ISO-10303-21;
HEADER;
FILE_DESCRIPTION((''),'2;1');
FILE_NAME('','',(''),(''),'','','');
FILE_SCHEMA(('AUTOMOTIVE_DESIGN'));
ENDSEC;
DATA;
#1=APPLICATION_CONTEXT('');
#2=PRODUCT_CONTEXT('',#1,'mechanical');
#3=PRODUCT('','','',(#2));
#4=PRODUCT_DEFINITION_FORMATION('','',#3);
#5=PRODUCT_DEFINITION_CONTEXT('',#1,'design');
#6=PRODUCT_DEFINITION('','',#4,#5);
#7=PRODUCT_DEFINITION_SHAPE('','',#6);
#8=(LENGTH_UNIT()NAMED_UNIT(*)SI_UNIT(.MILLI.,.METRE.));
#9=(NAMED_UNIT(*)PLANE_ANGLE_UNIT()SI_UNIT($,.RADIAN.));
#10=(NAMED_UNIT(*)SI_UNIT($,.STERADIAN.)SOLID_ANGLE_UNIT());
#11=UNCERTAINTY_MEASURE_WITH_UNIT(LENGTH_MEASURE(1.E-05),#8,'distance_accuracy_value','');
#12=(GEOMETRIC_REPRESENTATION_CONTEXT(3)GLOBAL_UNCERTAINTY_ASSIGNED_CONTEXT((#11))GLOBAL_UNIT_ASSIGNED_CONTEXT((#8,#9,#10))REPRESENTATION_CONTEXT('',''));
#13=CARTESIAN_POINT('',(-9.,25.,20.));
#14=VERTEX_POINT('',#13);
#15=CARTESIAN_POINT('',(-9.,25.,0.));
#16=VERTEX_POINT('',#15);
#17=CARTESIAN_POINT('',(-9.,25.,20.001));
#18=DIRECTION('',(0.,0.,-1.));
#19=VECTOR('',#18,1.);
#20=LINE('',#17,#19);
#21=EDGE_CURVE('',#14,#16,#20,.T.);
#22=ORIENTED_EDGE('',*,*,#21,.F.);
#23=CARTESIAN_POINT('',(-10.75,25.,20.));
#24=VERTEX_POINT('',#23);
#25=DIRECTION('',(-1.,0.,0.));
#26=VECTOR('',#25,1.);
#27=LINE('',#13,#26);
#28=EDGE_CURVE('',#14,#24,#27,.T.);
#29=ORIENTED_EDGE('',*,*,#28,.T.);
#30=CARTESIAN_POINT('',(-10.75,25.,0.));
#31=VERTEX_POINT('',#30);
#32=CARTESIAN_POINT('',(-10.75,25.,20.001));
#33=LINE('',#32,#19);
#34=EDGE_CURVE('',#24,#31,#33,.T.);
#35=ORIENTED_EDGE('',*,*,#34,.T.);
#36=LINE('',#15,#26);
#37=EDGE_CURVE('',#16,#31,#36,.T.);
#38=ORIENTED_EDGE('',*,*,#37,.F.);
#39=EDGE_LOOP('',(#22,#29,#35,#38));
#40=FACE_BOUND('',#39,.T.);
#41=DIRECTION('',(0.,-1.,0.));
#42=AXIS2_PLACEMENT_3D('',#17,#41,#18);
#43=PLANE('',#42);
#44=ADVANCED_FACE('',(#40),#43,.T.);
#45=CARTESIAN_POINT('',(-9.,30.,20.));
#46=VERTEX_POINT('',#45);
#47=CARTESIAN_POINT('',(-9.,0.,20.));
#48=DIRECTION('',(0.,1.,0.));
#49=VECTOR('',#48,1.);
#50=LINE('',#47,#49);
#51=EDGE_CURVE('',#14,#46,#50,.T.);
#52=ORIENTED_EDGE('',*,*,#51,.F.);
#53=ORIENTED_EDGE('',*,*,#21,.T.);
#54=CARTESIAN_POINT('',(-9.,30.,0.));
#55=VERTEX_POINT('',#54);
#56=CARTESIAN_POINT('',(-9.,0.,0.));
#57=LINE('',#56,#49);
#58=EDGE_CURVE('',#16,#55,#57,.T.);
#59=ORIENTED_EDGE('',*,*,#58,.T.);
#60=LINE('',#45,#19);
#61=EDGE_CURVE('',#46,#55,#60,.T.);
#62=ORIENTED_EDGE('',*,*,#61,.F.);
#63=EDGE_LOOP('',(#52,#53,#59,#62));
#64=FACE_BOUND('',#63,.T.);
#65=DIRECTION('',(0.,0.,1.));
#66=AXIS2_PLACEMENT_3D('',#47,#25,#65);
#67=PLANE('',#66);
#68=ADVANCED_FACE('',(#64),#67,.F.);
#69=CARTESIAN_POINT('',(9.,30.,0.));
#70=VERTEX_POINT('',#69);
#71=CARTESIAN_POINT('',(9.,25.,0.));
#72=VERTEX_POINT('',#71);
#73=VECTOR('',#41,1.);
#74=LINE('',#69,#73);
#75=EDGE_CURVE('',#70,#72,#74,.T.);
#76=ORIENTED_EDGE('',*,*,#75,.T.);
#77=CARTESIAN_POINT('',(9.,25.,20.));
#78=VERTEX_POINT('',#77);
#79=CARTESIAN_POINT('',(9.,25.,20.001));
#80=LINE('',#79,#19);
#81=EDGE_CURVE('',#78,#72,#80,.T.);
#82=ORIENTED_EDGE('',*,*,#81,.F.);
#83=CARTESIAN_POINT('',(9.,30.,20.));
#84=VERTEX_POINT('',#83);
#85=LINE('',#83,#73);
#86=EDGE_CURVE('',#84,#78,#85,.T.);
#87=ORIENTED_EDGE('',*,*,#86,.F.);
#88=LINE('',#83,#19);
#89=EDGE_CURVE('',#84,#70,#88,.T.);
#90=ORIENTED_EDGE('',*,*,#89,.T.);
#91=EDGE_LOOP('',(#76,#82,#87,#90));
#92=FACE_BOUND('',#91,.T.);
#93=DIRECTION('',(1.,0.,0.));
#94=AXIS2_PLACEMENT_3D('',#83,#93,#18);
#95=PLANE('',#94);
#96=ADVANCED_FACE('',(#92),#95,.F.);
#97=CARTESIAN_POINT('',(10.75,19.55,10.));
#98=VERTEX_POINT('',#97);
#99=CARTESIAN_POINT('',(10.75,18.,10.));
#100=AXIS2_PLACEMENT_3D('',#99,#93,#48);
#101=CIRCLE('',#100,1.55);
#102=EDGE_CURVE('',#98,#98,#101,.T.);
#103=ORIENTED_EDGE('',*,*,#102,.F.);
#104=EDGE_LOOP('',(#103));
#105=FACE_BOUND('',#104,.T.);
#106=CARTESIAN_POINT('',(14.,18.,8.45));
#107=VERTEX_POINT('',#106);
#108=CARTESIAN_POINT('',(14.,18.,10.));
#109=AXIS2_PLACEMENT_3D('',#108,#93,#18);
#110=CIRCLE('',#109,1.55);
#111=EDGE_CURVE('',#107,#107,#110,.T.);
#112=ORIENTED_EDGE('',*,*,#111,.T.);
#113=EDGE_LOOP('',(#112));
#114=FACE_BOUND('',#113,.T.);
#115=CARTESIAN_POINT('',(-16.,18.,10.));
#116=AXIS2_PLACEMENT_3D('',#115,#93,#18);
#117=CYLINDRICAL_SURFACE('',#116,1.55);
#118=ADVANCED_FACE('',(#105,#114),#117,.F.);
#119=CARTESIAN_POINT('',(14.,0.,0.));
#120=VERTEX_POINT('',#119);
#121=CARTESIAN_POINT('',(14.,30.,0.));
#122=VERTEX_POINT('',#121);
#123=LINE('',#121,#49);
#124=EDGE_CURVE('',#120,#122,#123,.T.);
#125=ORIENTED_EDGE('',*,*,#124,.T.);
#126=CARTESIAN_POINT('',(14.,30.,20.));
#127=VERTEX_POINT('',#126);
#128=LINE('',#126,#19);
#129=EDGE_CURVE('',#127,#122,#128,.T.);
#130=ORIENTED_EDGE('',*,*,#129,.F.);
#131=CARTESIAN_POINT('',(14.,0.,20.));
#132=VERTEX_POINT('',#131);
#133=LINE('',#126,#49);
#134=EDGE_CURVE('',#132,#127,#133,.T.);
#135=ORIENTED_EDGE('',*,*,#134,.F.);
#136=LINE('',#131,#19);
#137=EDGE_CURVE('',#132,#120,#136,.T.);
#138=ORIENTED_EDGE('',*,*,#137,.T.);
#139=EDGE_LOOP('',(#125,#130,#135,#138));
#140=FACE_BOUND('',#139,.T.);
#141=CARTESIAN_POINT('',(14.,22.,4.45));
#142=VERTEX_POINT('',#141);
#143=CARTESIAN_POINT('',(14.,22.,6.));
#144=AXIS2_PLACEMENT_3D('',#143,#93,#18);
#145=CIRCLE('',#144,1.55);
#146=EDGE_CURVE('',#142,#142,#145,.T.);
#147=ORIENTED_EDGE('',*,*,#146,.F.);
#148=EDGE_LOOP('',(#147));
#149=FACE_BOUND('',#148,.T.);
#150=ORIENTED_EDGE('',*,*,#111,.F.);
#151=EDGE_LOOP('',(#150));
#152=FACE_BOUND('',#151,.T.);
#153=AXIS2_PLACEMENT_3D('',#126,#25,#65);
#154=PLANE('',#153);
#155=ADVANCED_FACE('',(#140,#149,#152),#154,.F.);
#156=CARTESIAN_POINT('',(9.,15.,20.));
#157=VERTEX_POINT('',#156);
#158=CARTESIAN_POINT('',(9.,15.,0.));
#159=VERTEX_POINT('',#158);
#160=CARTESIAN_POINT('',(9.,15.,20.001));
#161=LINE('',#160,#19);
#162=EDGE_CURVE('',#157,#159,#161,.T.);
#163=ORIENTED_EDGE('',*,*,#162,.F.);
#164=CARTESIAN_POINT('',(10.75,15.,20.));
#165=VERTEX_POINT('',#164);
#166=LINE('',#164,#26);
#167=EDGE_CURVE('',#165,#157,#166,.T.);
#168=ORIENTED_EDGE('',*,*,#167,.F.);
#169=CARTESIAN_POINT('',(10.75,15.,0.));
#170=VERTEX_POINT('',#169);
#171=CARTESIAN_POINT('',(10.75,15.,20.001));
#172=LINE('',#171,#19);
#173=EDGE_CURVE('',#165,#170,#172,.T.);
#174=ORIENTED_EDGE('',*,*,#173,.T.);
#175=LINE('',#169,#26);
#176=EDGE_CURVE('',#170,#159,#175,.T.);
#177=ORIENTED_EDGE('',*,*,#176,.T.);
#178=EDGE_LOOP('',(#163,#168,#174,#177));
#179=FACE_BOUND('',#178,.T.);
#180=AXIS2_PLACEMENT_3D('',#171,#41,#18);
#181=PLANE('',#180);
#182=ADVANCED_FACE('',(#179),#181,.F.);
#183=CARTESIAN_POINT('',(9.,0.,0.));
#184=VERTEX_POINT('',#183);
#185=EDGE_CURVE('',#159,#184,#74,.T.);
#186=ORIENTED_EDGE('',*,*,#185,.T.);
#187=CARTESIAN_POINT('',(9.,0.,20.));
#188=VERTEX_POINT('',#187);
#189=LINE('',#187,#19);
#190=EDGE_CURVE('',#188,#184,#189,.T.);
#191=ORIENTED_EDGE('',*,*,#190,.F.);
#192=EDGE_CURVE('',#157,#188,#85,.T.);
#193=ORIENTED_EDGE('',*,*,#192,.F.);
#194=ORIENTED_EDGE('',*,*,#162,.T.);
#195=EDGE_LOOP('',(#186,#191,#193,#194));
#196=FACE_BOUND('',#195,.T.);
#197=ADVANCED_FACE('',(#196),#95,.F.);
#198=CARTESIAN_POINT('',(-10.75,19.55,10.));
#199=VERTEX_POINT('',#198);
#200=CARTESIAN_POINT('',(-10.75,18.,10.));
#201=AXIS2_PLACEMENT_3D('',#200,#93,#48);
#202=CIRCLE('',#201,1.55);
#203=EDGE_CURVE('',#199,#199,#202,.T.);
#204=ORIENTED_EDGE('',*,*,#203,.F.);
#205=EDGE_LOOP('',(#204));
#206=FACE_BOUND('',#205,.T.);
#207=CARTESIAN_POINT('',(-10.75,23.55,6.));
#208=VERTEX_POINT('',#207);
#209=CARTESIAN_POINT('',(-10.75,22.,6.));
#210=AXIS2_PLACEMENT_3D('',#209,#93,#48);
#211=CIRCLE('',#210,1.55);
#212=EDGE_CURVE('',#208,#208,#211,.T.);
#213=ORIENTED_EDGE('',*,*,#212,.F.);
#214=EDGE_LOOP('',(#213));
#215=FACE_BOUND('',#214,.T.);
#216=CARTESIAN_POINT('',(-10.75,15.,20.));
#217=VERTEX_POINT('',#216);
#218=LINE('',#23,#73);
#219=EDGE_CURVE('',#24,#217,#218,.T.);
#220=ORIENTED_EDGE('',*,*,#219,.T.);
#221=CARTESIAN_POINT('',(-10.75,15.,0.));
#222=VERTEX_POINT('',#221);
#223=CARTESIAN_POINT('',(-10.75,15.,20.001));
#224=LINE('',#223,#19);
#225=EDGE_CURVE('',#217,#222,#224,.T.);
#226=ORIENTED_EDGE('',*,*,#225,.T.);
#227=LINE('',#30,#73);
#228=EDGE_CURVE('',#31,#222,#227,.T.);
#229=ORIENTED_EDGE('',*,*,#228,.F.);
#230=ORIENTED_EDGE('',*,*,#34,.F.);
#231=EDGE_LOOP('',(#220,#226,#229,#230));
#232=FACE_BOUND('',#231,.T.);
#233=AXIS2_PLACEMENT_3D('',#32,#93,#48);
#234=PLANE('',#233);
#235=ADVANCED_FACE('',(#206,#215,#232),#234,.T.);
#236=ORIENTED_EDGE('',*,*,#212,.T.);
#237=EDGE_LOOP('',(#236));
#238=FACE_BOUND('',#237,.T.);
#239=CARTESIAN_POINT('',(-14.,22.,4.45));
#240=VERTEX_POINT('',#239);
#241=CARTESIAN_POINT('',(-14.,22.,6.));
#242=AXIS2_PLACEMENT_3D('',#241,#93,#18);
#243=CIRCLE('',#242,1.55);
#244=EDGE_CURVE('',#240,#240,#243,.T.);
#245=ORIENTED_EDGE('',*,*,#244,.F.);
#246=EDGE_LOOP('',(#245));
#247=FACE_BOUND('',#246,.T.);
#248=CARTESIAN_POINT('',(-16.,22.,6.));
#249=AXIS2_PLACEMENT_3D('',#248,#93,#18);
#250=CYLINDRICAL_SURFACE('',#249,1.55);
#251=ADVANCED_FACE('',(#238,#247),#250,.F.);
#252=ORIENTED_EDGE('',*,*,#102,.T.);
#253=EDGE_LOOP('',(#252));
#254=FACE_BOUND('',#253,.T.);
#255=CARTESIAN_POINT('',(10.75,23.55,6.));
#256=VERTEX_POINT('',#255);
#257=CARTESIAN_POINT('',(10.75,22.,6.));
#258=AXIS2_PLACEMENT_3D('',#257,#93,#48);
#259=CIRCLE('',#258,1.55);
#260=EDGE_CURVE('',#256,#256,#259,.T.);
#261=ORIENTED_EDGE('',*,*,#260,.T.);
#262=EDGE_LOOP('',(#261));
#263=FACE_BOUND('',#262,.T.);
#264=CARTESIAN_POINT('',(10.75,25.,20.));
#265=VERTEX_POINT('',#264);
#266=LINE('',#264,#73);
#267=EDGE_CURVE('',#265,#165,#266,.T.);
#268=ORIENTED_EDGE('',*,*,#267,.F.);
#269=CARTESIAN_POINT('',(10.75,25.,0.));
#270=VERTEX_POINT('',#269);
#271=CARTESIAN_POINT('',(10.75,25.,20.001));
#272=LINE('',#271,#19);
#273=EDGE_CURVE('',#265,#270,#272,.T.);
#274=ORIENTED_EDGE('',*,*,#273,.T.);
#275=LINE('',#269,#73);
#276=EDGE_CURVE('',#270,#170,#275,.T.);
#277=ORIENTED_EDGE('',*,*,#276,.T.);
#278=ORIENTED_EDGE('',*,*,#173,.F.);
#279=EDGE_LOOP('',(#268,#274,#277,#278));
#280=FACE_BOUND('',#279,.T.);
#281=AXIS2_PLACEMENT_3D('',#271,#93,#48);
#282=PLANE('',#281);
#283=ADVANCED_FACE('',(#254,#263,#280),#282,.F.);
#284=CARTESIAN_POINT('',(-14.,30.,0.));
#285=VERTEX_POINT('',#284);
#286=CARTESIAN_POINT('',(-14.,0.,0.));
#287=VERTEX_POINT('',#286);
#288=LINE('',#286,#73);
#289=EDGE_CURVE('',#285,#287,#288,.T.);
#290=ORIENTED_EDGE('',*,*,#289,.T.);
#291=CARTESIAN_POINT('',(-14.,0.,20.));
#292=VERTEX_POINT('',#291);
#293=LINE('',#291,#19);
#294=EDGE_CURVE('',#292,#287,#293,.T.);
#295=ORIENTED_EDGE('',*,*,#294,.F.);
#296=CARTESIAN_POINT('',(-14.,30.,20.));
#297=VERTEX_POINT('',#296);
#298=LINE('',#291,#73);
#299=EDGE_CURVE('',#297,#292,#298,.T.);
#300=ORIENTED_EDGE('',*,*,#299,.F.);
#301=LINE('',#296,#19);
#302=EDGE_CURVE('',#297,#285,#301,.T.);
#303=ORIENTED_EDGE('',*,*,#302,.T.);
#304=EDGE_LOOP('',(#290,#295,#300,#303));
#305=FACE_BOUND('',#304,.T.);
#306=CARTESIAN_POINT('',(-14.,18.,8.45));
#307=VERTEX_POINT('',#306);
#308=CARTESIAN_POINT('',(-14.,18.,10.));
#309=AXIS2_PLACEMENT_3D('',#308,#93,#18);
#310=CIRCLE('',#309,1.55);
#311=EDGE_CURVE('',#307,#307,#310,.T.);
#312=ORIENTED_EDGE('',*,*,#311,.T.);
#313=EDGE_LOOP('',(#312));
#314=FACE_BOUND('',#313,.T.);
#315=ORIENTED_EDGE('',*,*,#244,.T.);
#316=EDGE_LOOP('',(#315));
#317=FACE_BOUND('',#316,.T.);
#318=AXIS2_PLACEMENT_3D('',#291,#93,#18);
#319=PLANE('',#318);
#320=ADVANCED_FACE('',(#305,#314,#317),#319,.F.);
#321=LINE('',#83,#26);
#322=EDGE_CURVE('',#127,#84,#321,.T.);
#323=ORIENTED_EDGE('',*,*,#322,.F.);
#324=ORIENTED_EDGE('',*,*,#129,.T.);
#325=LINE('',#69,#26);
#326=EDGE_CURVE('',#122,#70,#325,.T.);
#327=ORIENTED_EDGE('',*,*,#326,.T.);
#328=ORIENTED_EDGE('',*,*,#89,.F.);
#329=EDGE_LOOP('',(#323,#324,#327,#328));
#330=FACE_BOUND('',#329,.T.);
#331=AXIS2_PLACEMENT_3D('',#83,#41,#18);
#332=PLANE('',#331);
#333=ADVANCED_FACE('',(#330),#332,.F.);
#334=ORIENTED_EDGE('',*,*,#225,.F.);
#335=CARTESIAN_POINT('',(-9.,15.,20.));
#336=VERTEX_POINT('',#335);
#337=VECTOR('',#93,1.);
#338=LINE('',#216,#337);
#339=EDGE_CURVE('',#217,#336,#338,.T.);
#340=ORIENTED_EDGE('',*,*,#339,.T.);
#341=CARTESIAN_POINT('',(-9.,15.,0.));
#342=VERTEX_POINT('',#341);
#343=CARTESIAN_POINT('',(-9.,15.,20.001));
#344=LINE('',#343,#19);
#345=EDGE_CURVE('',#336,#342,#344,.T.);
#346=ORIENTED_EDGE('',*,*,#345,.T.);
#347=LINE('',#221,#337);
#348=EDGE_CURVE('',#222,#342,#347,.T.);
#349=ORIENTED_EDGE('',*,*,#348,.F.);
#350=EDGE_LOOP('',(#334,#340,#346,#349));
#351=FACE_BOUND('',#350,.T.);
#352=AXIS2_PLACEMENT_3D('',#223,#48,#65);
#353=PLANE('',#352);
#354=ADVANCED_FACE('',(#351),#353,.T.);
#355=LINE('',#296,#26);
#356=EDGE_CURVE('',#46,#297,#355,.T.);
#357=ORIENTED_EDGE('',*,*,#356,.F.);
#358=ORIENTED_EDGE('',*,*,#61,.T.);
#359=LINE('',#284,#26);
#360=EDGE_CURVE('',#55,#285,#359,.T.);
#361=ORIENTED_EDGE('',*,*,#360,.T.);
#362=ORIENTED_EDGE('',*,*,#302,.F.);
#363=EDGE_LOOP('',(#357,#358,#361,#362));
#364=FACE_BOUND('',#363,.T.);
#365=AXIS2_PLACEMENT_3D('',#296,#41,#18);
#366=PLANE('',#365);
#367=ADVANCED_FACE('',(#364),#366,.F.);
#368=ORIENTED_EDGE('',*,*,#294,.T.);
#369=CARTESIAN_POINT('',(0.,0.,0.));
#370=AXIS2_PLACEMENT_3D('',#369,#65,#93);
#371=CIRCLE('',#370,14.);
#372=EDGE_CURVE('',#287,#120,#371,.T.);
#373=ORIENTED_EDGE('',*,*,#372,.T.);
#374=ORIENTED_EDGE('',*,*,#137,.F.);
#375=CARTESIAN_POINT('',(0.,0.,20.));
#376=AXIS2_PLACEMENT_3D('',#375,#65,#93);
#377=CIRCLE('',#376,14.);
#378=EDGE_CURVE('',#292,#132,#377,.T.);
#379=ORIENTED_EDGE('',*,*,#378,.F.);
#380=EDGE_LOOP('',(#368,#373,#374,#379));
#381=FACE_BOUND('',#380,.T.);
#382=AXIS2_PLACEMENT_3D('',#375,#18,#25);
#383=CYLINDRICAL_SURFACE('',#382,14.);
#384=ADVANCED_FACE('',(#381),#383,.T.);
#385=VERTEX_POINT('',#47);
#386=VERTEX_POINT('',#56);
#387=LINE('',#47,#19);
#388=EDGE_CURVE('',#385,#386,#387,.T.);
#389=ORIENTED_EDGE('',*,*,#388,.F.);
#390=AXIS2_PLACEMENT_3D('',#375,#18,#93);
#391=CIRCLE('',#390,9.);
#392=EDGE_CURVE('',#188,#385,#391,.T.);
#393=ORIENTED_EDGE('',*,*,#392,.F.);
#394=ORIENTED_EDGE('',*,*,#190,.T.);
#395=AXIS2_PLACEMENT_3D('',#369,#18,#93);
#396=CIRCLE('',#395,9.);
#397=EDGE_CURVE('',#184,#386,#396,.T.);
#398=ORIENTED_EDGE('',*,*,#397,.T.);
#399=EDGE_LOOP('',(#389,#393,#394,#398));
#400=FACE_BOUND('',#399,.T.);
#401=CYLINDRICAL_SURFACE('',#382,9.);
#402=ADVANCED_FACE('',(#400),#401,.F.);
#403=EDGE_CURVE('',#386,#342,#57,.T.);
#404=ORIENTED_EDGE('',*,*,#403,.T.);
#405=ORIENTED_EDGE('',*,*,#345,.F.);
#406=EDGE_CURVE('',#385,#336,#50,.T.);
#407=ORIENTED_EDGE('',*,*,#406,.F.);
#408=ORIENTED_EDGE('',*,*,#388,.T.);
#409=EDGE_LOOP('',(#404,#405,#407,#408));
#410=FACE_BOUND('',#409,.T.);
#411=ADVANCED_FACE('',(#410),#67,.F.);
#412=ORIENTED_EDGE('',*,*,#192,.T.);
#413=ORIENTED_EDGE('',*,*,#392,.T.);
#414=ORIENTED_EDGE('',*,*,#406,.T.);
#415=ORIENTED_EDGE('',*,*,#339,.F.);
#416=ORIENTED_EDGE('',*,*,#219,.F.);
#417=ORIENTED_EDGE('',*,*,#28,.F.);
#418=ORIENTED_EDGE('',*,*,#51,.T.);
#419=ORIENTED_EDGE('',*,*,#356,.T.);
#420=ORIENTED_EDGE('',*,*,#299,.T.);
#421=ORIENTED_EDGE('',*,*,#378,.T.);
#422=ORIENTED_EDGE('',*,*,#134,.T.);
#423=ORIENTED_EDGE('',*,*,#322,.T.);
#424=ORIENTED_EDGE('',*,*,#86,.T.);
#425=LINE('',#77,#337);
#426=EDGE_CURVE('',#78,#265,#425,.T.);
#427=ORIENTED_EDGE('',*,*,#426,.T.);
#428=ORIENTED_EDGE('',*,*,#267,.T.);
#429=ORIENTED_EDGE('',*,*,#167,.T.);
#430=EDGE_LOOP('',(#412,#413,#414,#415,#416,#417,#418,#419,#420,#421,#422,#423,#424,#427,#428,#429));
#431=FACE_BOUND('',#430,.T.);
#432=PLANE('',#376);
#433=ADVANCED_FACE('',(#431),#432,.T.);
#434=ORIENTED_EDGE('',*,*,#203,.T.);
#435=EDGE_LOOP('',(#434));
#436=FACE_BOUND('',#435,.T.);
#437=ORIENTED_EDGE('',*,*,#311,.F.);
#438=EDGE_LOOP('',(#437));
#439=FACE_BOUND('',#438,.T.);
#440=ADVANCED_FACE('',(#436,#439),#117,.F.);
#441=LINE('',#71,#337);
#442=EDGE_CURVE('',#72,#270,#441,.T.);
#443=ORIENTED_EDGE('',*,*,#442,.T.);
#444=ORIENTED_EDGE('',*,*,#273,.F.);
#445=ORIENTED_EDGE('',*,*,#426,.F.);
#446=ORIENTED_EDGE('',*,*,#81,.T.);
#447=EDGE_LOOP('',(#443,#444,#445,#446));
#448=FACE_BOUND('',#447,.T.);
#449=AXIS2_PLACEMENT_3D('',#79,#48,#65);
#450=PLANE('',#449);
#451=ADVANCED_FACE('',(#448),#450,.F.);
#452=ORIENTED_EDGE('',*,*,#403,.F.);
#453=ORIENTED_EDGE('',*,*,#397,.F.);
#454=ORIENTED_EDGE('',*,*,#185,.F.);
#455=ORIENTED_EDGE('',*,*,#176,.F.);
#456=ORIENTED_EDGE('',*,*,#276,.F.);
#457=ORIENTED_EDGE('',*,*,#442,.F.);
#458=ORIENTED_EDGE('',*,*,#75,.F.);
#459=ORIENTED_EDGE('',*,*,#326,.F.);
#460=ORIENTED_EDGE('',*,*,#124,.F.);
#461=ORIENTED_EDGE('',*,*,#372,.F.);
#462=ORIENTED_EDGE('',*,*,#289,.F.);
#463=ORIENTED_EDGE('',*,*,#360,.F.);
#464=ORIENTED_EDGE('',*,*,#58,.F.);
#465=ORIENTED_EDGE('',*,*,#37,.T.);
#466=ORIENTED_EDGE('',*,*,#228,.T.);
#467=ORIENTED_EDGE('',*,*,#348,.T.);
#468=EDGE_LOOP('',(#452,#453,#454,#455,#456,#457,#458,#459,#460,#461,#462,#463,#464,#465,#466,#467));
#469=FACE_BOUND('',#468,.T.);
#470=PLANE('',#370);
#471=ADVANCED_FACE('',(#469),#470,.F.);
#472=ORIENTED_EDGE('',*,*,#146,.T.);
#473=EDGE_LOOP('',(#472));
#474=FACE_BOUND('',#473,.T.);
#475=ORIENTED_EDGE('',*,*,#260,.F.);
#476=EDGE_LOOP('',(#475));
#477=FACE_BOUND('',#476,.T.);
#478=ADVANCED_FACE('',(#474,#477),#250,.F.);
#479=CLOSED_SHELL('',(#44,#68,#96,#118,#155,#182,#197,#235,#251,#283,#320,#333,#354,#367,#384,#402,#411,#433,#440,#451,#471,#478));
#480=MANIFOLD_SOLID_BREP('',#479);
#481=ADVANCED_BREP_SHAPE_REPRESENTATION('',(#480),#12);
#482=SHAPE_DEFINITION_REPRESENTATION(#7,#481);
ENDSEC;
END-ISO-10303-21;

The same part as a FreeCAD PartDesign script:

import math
import FreeCAD as App
import Part
import Sketcher

V = App.Vector


def add_polygon(sketch, points):
    """Adds a closed chain of lines whose ends are joined by coincident constraints."""
    first, n = sketch.GeometryCount, len(points)
    for a, b in zip(points, points[1:] + points[:1]):
        sketch.addGeometry(Part.LineSegment(App.Vector(*a, 0), App.Vector(*b, 0)), False)
    for i in range(n):
        sketch.addConstraint(Sketcher.Constraint("Coincident", first + i, 2, first + (i + 1) % n, 1))

doc = App.newDocument("Part")
body = doc.addObject("PartDesign::Body", "Body")

# Sketch on XY plane
sketch1 = body.newObject("Sketcher::SketchObject", "Sketch")
sketch1.AttachmentSupport = (doc.getObject("XY_Plane"), [""])
sketch1.MapMode = "FlatFace"
sketch1.addGeometry([
    Part.LineSegment(V(-14, 30, 0), V(-14, 0, 0)),  # 0
    Part.ArcOfCircle(Part.Circle(V(0, 0, 0), V(0, 0, 1), 14), math.radians(180), math.radians(360)),  # 1
    Part.LineSegment(V(14, 0, 0), V(14, 30, 0)),  # 2
    Part.LineSegment(V(14, 30, 0), V(9, 30, 0)),  # 3
    Part.LineSegment(V(9, 30, 0), V(9, 0, 0)),  # 4
    Part.ArcOfCircle(Part.Circle(V(0, 0, 0), V(0, 0, 1), 9), math.radians(180), math.radians(360)),  # 5
    Part.LineSegment(V(-9, 0, 0), V(-9, 30, 0)),  # 6
    Part.LineSegment(V(-9, 30, 0), V(-14, 30, 0)),  # 7
], False)
sketch1.addConstraint([
    Sketcher.Constraint("Tangent", 0, 2, 1, 1),
    Sketcher.Constraint("Tangent", 1, 2, 2, 1),
    Sketcher.Constraint("Coincident", 2, 2, 3, 1),
    Sketcher.Constraint("Coincident", 3, 2, 4, 1),
    Sketcher.Constraint("Tangent", 4, 2, 5, 2),
    Sketcher.Constraint("Tangent", 5, 1, 6, 1),
    Sketcher.Constraint("Coincident", 6, 2, 7, 1),
    Sketcher.Constraint("Coincident", 7, 2, 0, 1),
    Sketcher.Constraint("Vertical", 0),
    Sketcher.Constraint("Vertical", 2),
    Sketcher.Constraint("Horizontal", 3),
    Sketcher.Constraint("Vertical", 4),
    Sketcher.Constraint("Vertical", 6),
    Sketcher.Constraint("Horizontal", 7),
    Sketcher.Constraint("Coincident", 1, 3, -1, 1),
    Sketcher.Constraint("Coincident", 5, 3, -1, 1),
    Sketcher.Constraint("Horizontal", 3, 2, 6, 2),
    Sketcher.Constraint("Radius", 1, 14.0),
    Sketcher.Constraint("Radius", 5, 9.0),
    Sketcher.Constraint("DistanceY", 0, 2, 0, 1, 30.0),
])
pad1 = body.newObject("PartDesign::Pad", "Pad")
pad1.Profile = sketch1
pad1.Length = 20

# Sketch on YZ plane
sketch2 = body.newObject("Sketcher::SketchObject", "Sketch001")
sketch2.AttachmentSupport = (doc.getObject("YZ_Plane"), [""])
sketch2.MapMode = "FlatFace"
sketch2.AttachmentOffset = App.Placement(V(0, 0, 14), App.Rotation())
sketch2.addGeometry([
    Part.Circle(V(18, 10, 0), V(0, 0, 1), 1.6),
    Part.Circle(V(22, 6, 0), V(0, 0, 1), 1.6),
], False)
sketch2.addConstraint([
    Sketcher.Constraint("Equal", 0, 1),
    Sketcher.Constraint("Diameter", 0, 3.1),
    Sketcher.Constraint("DistanceX", -1, 1, 0, 3, 18.0),
    Sketcher.Constraint("DistanceY", -1, 1, 0, 3, 10.0),
    Sketcher.Constraint("DistanceX", -1, 1, 1, 3, 22.0),
    Sketcher.Constraint("DistanceY", -1, 1, 1, 3, 6.0),
])
pocket1 = body.newObject("PartDesign::Pocket", "Pocket")
pocket1.Profile = sketch2
pocket1.Length = 30

# Sketch on XY plane
sketch3 = body.newObject("Sketcher::SketchObject", "Sketch002")
sketch3.AttachmentSupport = (doc.getObject("XY_Plane"), [""])
sketch3.MapMode = "FlatFace"
add_polygon(sketch3, [(10.8, 25), (10.8, 15), (9, 15), (9, 25)])  # lines 0-3
sketch3.addConstraint([
    Sketcher.Constraint("Vertical", 0),
    Sketcher.Constraint("Horizontal", 1),
    Sketcher.Constraint("Vertical", 2),
    Sketcher.Constraint("Horizontal", 3),
    Sketcher.Constraint("DistanceY", 0, 2, 0, 1, 10.0),
    Sketcher.Constraint("DistanceY", -1, 1, 0, 2, 15.0),
    Sketcher.Constraint("DistanceX", -1, 1, 1, 2, 9.0),
    Sketcher.Constraint("DistanceX", 1, 2, 1, 1, 1.75),
])
pocket2 = body.newObject("PartDesign::Pocket", "Pocket001")
pocket2.Profile = sketch3
pocket2.Length = 20
pocket2.Reversed = True
doc.recompute()

mirrored = body.newObject("PartDesign::Mirrored", "Mirrored")
mirrored.Originals = [pocket2]
mirrored.MirrorPlane = (doc.getObject("YZ_Plane"), [""])
body.Tip = mirrored

doc.recompute()
